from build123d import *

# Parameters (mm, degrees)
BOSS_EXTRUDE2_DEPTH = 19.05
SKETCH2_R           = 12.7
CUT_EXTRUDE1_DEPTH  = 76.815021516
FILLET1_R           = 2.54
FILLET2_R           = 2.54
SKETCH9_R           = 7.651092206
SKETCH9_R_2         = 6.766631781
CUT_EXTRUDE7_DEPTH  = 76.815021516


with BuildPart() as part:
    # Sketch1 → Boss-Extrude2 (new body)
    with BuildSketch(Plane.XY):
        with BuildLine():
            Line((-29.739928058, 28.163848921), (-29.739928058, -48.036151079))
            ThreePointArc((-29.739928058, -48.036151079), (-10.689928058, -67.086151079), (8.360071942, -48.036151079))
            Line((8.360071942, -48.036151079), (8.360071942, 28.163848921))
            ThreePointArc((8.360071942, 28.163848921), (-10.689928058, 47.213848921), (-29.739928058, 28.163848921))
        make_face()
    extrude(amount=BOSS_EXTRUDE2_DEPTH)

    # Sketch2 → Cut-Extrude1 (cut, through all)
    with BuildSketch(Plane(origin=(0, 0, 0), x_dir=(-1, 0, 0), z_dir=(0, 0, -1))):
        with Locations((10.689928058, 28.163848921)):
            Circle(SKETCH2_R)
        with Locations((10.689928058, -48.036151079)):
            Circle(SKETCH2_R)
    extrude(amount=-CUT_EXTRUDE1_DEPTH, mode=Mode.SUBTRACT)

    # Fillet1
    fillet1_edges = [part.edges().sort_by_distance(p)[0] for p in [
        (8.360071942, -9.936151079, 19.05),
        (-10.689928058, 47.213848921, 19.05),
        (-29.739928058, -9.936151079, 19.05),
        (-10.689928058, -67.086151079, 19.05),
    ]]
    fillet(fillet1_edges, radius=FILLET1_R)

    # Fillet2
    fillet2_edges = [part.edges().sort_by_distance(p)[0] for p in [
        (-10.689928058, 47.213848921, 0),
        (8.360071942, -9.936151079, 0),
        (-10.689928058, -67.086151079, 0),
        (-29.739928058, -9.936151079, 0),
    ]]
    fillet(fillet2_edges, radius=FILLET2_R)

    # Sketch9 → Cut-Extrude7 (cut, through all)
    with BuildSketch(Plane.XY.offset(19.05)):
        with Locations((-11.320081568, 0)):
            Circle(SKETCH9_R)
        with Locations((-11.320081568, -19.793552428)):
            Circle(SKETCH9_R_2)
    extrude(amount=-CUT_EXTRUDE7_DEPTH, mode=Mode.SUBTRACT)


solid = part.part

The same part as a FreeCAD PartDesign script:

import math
import FreeCAD as App
import Part
import Sketcher
Q = App.Units.Quantity


def edges_at(feature, points):
    """Names of the edges that pass closest to the given points."""
    edges = feature.Shape.Edges
    near = lambda p: min(range(len(edges)), key=lambda i: edges[i].distToShape(Part.Vertex(*p))[0])
    return sorted({f"Edge{near(p) + 1}" for p in points})

doc = App.newDocument("Part")
body = doc.addObject("PartDesign::Body", "Body")

# Sketch on XY plane
sketch1 = body.newObject("Sketcher::SketchObject", "Sketch")
sketch1.AttachmentSupport = (doc.getObject("XY_Plane"), [""])
sketch1.MapMode = "FlatFace"
sketch1.addGeometry([
    Part.LineSegment(App.Vector(-29.739928, 28.163849, 0), App.Vector(-29.739928, -48.036151, 0)),
    Part.ArcOfCircle(Part.Circle(App.Vector(-10.689928, -48.036151, 0), App.Vector(0, 0, 1), 19.05), math.radians(180), math.radians(360)),
    Part.LineSegment(App.Vector(8.360072, -48.036151, 0), App.Vector(8.360072, 28.163849, 0)),
    Part.ArcOfCircle(Part.Circle(App.Vector(-10.689928, 28.163849, 0), App.Vector(0, 0, 1), 19.05), math.radians(0), math.radians(180)),
], False)
sketch1.addConstraint([
    Sketcher.Constraint("Tangent", 0, 2, 1, 1),
    Sketcher.Constraint("Tangent", 1, 2, 2, 1),
    Sketcher.Constraint("Tangent", 2, 2, 3, 1),
    Sketcher.Constraint("Tangent", 3, 2, 0, 1),
    Sketcher.Constraint("Vertical", 0),
    Sketcher.Constraint("Vertical", 2),
    Sketcher.Constraint("DistanceY", 0, 2, 0, 1, Q("3 in")),
    Sketcher.Constraint("Radius", 1, Q("0.75 in")),
    Sketcher.Constraint("DistanceX", 1, 3, -1, 1, Q("10.689928 mm")),
    Sketcher.Constraint("DistanceY", 1, 3, -1, 1, Q("48.036151 mm")),
])
pad1 = body.newObject("PartDesign::Pad", "Pad")
pad1.Profile = sketch1
pad1.Length = Q("0.75 in")

# Sketch on XY plane
sketch2 = body.newObject("Sketcher::SketchObject", "Sketch001")
sketch2.AttachmentSupport = (doc.getObject("XY_Plane"), [""])
sketch2.MapMode = "FlatFace"
sketch2.addGeometry([
    Part.Circle(App.Vector(-10.689928, 28.163849, 0), App.Vector(0, 0, 1), 12.7),
    Part.Circle(App.Vector(-10.689928, -48.036151, 0), App.Vector(0, 0, 1), 12.7),
], False)
sketch2.addConstraint([
    Sketcher.Constraint("Equal", 0, 1),
    Sketcher.Constraint("Vertical", 0, 3, 1, 3),
    Sketcher.Constraint("Diameter", 0, Q("1 in")),
    Sketcher.Constraint("DistanceY", 1, 3, 0, 3, Q("3 in")),
    Sketcher.Constraint("DistanceX", 0, 3, -1, 1, Q("10.689928 mm")),
    Sketcher.Constraint("DistanceY", -1, 1, 0, 3, Q("28.163849 mm")),
])
pocket1 = body.newObject("PartDesign::Pocket", "Pocket")
pocket1.Profile = sketch2
pocket1.Type = "ThroughAll"
pocket1.Reversed = True
doc.recompute()

fillet = body.newObject("PartDesign::Fillet", "Fillet")
fillet.Base = (pocket1, edges_at(pocket1, [
    (8.36, -9.936, 19.05),
    (-10.69, 47.214, 19.05),
    (-29.74, -9.936, 19.05),
    (-10.69, -67.086, 19.05),
]))
fillet.Radius = Q("0.1 in")
doc.recompute()

fillet2 = body.newObject("PartDesign::Fillet", "Fillet001")
fillet2.Base = (fillet, edges_at(fillet, [
    (-10.69, 47.214, 0),
    (8.36, -9.936, 0),
    (-10.69, -67.086, 0),
    (-29.74, -9.936, 0),
]))
fillet2.Radius = Q("0.1 in")

# Sketch on XY plane
sketch3 = body.newObject("Sketcher::SketchObject", "Sketch002")
sketch3.AttachmentSupport = (doc.getObject("XY_Plane"), [""])
sketch3.MapMode = "FlatFace"
sketch3.AttachmentOffset = App.Placement(App.Vector(0, 0, 0.75 * 25.4), App.Rotation())
sketch3.addGeometry([
    Part.Circle(App.Vector(-11.320082, 0, 0), App.Vector(0, 0, 1), 7.651092),
    Part.Circle(App.Vector(-11.320082, -19.793552, 0), App.Vector(0, 0, 1), 6.766632),
], False)
sketch3.addConstraint([
    Sketcher.Constraint("PointOnObject", 0, 3, -1),
    Sketcher.Constraint("Vertical", 0, 3, 1, 3),
    Sketcher.Constraint("Diameter", 0, Q("15.302184 mm")),
    Sketcher.Constraint("Diameter", 1, Q("13.533264 mm")),
    Sketcher.Constraint("DistanceX", 0, 3, -1, 1, Q("11.320082 mm")),
    Sketcher.Constraint("DistanceY", 1, 3, -1, 1, Q("19.793552 mm")),
])
pocket2 = body.newObject("PartDesign::Pocket", "Pocket001")
pocket2.Profile = sketch3
pocket2.Type = "ThroughAll"

doc.recompute()
